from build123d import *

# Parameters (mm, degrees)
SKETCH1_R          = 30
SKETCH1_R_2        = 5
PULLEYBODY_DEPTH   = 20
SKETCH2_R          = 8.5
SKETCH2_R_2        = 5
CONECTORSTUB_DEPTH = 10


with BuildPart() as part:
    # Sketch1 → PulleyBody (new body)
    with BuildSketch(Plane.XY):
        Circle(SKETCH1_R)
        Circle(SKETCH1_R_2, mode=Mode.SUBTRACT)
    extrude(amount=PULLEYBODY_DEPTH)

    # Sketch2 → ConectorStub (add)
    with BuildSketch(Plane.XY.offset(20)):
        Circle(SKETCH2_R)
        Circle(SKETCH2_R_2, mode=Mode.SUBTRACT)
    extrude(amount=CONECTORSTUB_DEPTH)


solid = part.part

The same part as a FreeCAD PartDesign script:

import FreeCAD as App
import Part
import Sketcher
Q = App.Units.Quantity

doc = App.newDocument("Part")
params = doc.addObject("Spreadsheet::Sheet", "Params")
for row, (alias, value) in enumerate([
    ("sketch1_diameter", "60 mm"),
    ("sketch1_diameter2", "10 mm"),
    ("pad1_length", "20 mm"),
    ("sketch2_diameter", "17 mm"),
    ("sketch2_diameter2", "10 mm"),
    ("pad2_length", "10 mm"),
], start=1):
    params.set(f"A{row}", alias)
    params.set(f"B{row}", "=" + value)
    params.setAlias(f"B{row}", alias)

body = doc.addObject("PartDesign::Body", "Body")

# Sketch on XY plane
sketch1 = doc.addObject("Sketcher::SketchObject", "Sketch")
body.addObject(sketch1)
sketch1.AttachmentSupport = (doc.XY_Plane, [""])
sketch1.MapMode = "FlatFace"
sketch1.addGeometry(Part.Circle(App.Vector(0, 0, 0), App.Vector(0, 0, 1), 30), False)
sketch1.addGeometry(Part.Circle(App.Vector(0, 0, 0), App.Vector(0, 0, 1), 5), False)
sketch1.addConstraint(Sketcher.Constraint("Coincident", 0, 3, -1, 1))
sketch1.addConstraint(Sketcher.Constraint("Coincident", 1, 3, -1, 1))
sketch1.addConstraint(Sketcher.Constraint("Diameter", 0, Q("60 mm")))
sketch1.addConstraint(Sketcher.Constraint("Diameter", 1, Q("10 mm")))
sketch1.setExpression("Constraints[2]", "Params.sketch1_diameter")
sketch1.setExpression("Constraints[3]", "Params.sketch1_diameter2")
pad1 = doc.addObject("PartDesign::Pad", "Pad")
body.addObject(pad1)
pad1.Profile = sketch1
pad1.setExpression("Length", "Params.pad1_length")

# Sketch on XY plane
sketch2 = doc.addObject("Sketcher::SketchObject", "Sketch001")
body.addObject(sketch2)
sketch2.AttachmentSupport = (doc.XY_Plane, [""])
sketch2.MapMode = "FlatFace"
sketch2.AttachmentOffset = App.Placement(App.Vector(0, 0, 20), App.Rotation())
sketch2.addGeometry(Part.Circle(App.Vector(0, 0, 0), App.Vector(0, 0, 1), 8), False)
sketch2.addGeometry(Part.Circle(App.Vector(0, 0, 0), App.Vector(0, 0, 1), 5), False)
sketch2.addConstraint(Sketcher.Constraint("Coincident", 0, 3, -1, 1))
sketch2.addConstraint(Sketcher.Constraint("Coincident", 1, 3, -1, 1))
sketch2.addConstraint(Sketcher.Constraint("Diameter", 0, Q("17 mm")))
sketch2.addConstraint(Sketcher.Constraint("Diameter", 1, Q("10 mm")))
sketch2.setExpression("Constraints[2]", "Params.sketch2_diameter")
sketch2.setExpression("Constraints[3]", "Params.sketch2_diameter2")
pad2 = doc.addObject("PartDesign::Pad", "Pad001")
body.addObject(pad2)
pad2.Profile = sketch2
pad2.setExpression("Length", "Params.pad2_length")

doc.recompute()
